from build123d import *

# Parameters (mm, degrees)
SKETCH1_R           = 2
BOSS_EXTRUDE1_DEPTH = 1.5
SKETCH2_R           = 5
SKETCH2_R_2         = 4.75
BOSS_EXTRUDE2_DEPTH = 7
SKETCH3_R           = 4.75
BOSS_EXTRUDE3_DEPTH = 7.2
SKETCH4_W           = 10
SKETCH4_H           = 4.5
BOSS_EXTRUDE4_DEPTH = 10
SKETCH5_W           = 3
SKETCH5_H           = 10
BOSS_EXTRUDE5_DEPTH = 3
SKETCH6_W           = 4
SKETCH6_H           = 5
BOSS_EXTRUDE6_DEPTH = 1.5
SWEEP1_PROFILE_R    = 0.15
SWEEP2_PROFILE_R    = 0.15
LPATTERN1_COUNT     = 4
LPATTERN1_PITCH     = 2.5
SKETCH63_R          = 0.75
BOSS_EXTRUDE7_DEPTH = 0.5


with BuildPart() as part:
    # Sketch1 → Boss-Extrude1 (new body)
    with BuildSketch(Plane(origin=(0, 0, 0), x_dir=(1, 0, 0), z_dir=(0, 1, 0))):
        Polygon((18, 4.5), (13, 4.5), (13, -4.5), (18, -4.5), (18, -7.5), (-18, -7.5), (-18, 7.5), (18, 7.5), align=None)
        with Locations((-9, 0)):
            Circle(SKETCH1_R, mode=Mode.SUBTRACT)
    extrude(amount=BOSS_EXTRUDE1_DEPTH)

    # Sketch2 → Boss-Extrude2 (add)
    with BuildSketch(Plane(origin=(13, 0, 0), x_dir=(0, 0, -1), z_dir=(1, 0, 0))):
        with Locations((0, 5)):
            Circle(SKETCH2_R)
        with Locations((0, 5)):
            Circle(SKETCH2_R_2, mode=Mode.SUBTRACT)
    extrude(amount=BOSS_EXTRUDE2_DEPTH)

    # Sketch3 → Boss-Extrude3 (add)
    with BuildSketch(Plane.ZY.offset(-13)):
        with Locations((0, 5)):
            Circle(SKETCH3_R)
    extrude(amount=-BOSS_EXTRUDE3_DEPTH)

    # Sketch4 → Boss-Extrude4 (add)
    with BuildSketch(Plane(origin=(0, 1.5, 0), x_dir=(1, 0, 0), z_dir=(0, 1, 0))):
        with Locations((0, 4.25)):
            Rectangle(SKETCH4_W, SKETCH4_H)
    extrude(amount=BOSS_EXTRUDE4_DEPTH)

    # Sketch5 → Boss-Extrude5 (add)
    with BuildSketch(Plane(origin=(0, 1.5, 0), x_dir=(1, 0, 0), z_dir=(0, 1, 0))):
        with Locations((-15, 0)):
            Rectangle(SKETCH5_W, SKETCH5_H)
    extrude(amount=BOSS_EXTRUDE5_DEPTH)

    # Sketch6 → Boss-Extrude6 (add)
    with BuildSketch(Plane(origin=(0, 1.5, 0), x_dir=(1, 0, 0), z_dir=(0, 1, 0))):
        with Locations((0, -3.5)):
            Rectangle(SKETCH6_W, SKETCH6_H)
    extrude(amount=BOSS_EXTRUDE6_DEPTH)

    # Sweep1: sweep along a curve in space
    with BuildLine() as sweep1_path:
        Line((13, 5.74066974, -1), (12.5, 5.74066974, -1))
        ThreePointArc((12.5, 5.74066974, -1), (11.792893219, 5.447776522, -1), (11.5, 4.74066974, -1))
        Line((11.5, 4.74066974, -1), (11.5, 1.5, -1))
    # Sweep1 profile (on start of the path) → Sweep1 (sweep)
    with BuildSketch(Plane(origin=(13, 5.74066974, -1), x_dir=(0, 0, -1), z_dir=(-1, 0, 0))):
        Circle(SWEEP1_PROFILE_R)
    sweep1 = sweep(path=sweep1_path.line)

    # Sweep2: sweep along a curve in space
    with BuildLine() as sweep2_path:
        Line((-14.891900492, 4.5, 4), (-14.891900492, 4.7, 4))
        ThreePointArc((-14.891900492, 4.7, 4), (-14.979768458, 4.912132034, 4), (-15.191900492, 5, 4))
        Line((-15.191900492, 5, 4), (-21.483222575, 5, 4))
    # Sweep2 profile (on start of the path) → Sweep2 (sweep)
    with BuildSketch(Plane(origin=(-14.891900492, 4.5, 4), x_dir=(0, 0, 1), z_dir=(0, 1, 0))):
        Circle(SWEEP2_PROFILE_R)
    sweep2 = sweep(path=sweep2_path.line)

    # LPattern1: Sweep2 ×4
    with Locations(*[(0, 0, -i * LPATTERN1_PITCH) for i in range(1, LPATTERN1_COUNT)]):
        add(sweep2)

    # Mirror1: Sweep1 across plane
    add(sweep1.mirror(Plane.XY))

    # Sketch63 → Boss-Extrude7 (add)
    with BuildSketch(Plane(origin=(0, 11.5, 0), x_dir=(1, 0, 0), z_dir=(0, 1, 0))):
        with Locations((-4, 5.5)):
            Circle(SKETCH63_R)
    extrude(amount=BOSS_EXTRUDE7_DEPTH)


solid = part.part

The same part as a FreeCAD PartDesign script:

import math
import FreeCAD as App
import Part
import Sketcher
from FreeCAD import Vector
Q = App.Units.Quantity

doc = App.newDocument("Part")
params = doc.addObject("Spreadsheet::Sheet", "Params")
for row, (alias, value) in enumerate([
    ("sketch1_diameter", "4 mm"),
    ("sketch1_width", "5 mm"),
    ("sketch1_width2", "36 mm"),
    ("sketch1_height", "3 mm"),
    ("sketch1_height2", "15 mm"),
    ("pad1_length", "1.5 mm"),
    ("sketch2_diameter", "10 mm"),
    ("sketch2_diameter2", "9.5 mm"),
    ("pad2_length", "7 mm"),
    ("sketch3_diameter", "9.5 mm"),
    ("pad3_length", "7.2 mm"),
    ("sketch4_width", "10 mm"),
    ("sketch4_height", "4.5 mm"),
    ("pad4_length", "10 mm"),
    ("sketch5_width", "3 mm"),
    ("sketch5_height", "10 mm"),
    ("pad5_length", "3 mm"),
    ("sketch6_width", "4 mm"),
    ("sketch6_height", "5 mm"),
    ("pad6_length", "1.5 mm"),
    ("sketch7_diameter", "0.3 mm"),
    ("sketch8_radius", "1 mm"),
    ("sketch8_width", "0.5 mm"),
    ("sketch9_diameter", "0.3 mm"),
    ("sketch10_radius", "0.3 mm"),
    ("sketch10_height", "0.2 mm"),
    ("linearpattern_pitch", "2.5 mm"),
    ("sketch11_diameter", "1.5 mm"),
    ("pad7_length", "0.5 mm"),
], start=1):
    params.set(f"A{row}", alias)
    params.set(f"B{row}", "=" + value)
    params.setAlias(f"B{row}", alias)

body = doc.addObject("PartDesign::Body", "Body")

sketch1 = body.newObject("Sketcher::SketchObject", "Sketch")
sketch1.AttachmentSupport = (doc.getObject("XZ_Plane"), [""])
sketch1.MapMode = "FlatFace"
sketch1.addGeometry(Part.LineSegment(Vector(13, -4.5, 0), Vector(18, -4.5, 0)), False)
sketch1.addGeometry(Part.LineSegment(Vector(18, -4.5, 0), Vector(18, -7.5, 0)), False)
sketch1.addGeometry(Part.LineSegment(Vector(18, -7.5, 0), Vector(-18, -7.5, 0)), False)
sketch1.addGeometry(Part.LineSegment(Vector(-18, -7.5, 0), Vector(-18, 7.5, 0)), False)
sketch1.addGeometry(Part.LineSegment(Vector(-18, 7.5, 0), Vector(18, 7.5, 0)), False)
sketch1.addGeometry(Part.LineSegment(Vector(18, 7.5, 0), Vector(18, 4.5, 0)), False)
sketch1.addGeometry(Part.LineSegment(Vector(18, 4.5, 0), Vector(13, 4.5, 0)), False)
sketch1.addGeometry(Part.LineSegment(Vector(13, 4.5, 0), Vector(13, -4.5, 0)), False)
sketch1.addGeometry(Part.Circle(Vector(-9, 0, 0), Vector(0, 0, 1), 2), False)
sketch1.addConstraint(Sketcher.Constraint("Coincident", 0, 2, 1, 1))
sketch1.addConstraint(Sketcher.Constraint("Coincident", 1, 2, 2, 1))
sketch1.addConstraint(Sketcher.Constraint("Coincident", 2, 2, 3, 1))
sketch1.addConstraint(Sketcher.Constraint("Coincident", 3, 2, 4, 1))
sketch1.addConstraint(Sketcher.Constraint("Coincident", 4, 2, 5, 1))
sketch1.addConstraint(Sketcher.Constraint("Coincident", 5, 2, 6, 1))
sketch1.addConstraint(Sketcher.Constraint("Coincident", 6, 2, 7, 1))
sketch1.addConstraint(Sketcher.Constraint("Coincident", 7, 2, 0, 1))
sketch1.addConstraint(Sketcher.Constraint("Horizontal", 0))
sketch1.addConstraint(Sketcher.Constraint("Vertical", 1))
sketch1.addConstraint(Sketcher.Constraint("Horizontal", 2))
sketch1.addConstraint(Sketcher.Constraint("Vertical", 3))
sketch1.addConstraint(Sketcher.Constraint("Horizontal", 4))
sketch1.addConstraint(Sketcher.Constraint("Vertical", 5))
sketch1.addConstraint(Sketcher.Constraint("Horizontal", 6))
sketch1.addConstraint(Sketcher.Constraint("Vertical", 7))
sketch1.addConstraint(Sketcher.Constraint("Symmetric", 1, 2, 3, 2, -1, 1))
sketch1.addConstraint(Sketcher.Constraint("Symmetric", 0, 2, 5, 2, -1))
sketch1.addConstraint(Sketcher.Constraint("PointOnObject", 8, 3, -1))
sketch1.addConstraint(Sketcher.Constraint("Diameter", 8, Q("4 mm")))
sketch1.addConstraint(Sketcher.Constraint("DistanceX", 0, 1, 0, 2, Q("5 mm")))
sketch1.addConstraint(Sketcher.Constraint("DistanceX", 2, 2, 2, 1, Q("36 mm")))
sketch1.addConstraint(Sketcher.Constraint("DistanceY", 1, 2, 1, 1, Q("3 mm")))
sketch1.addConstraint(Sketcher.Constraint("DistanceY", 3, 1, 3, 2, Q("15 mm")))
sketch1.addConstraint(Sketcher.Constraint("DistanceX", 8, 3, -1, 1, Q("9 mm")))
sketch1.setExpression("Constraints[19]", "Params.sketch1_diameter")
sketch1.setExpression("Constraints[20]", "Params.sketch1_width")
sketch1.setExpression("Constraints[21]", "Params.sketch1_width2")
sketch1.setExpression("Constraints[22]", "Params.sketch1_height")
sketch1.setExpression("Constraints[23]", "Params.sketch1_height2")
pad1 = body.newObject("PartDesign::Pad", "Pad")
pad1.Profile = sketch1
pad1.setExpression("Length", "Params.pad1_length")
pad1.Reversed = True

sketch2 = body.newObject("Sketcher::SketchObject", "Sketch001")
sketch2.AttachmentSupport = (doc.getObject("YZ_Plane"), [""])
sketch2.MapMode = "FlatFace"
sketch2.AttachmentOffset = App.Placement(Vector(0, 0, 13), App.Rotation())
sketch2.addGeometry(Part.Circle(Vector(5, 0, 0), Vector(0, 0, 1), 5), False)
sketch2.addGeometry(Part.Circle(Vector(5, 0, 0), Vector(0, 0, 1), 4.8), False)
sketch2.addConstraint(Sketcher.Constraint("Coincident", 1, 3, 0, 3))
sketch2.addConstraint(Sketcher.Constraint("PointOnObject", 0, 3, -1))
sketch2.addConstraint(Sketcher.Constraint("Diameter", 0, Q("10 mm")))
sketch2.addConstraint(Sketcher.Constraint("Diameter", 1, Q("9.5 mm")))
sketch2.addConstraint(Sketcher.Constraint("DistanceX", -1, 1, 0, 3, Q("5 mm")))
sketch2.setExpression("Constraints[2]", "Params.sketch2_diameter")
sketch2.setExpression("Constraints[3]", "Params.sketch2_diameter2")
pad2 = body.newObject("PartDesign::Pad", "Pad001")
pad2.Profile = sketch2
pad2.setExpression("Length", "Params.pad2_length")

sketch3 = body.newObject("Sketcher::SketchObject", "Sketch002")
sketch3.AttachmentSupport = (doc.getObject("YZ_Plane"), [""])
sketch3.MapMode = "FlatFace"
sketch3.AttachmentOffset = App.Placement(Vector(0, 0, 13), App.Rotation())
sketch3.addGeometry(Part.Circle(Vector(5, 0, 0), Vector(0, 0, 1), 4.8), False)
sketch3.addConstraint(Sketcher.Constraint("PointOnObject", 0, 3, -1))
sketch3.addConstraint(Sketcher.Constraint("Diameter", 0, Q("9.5 mm")))
sketch3.addConstraint(Sketcher.Constraint("DistanceX", -1, 1, 0, 3, Q("5 mm")))
sketch3.setExpression("Constraints[1]", "Params.sketch3_diameter")
pad3 = body.newObject("PartDesign::Pad", "Pad002")
pad3.Profile = sketch3
pad3.setExpression("Length", "Params.pad3_length")

sketch4 = body.newObject("Sketcher::SketchObject", "Sketch003")
sketch4.AttachmentSupport = (doc.getObject("XZ_Plane"), [""])
sketch4.MapMode = "FlatFace"
sketch4.AttachmentOffset = App.Placement(Vector(0, 0, -1.5), App.Rotation())
sketch4.addGeometry(Part.LineSegment(Vector(-5, -6.5, 0), Vector(-5, -2, 0)), False)
sketch4.addGeometry(Part.LineSegment(Vector(-5, -2, 0), Vector(5, -2, 0)), False)
sketch4.addGeometry(Part.LineSegment(Vector(5, -2, 0), Vector(5, -6.5, 0)), False)
sketch4.addGeometry(Part.LineSegment(Vector(5, -6.5, 0), Vector(-5, -6.5, 0)), False)
sketch4.addConstraint(Sketcher.Constraint("Coincident", 0, 2, 1, 1))
sketch4.addConstraint(Sketcher.Constraint("Coincident", 1, 2, 2, 1))
sketch4.addConstraint(Sketcher.Constraint("Coincident", 2, 2, 3, 1))
sketch4.addConstraint(Sketcher.Constraint("Coincident", 3, 2, 0, 1))
sketch4.addConstraint(Sketcher.Constraint("Vertical", 0))
sketch4.addConstraint(Sketcher.Constraint("Horizontal", 1))
sketch4.addConstraint(Sketcher.Constraint("Vertical", 2))
sketch4.addConstraint(Sketcher.Constraint("Horizontal", 3))
sketch4.addConstraint(Sketcher.Constraint("DistanceX", 1, 1, 1, 2, Q("10 mm")))
sketch4.addConstraint(Sketcher.Constraint("DistanceY", 0, 1, 0, 2, Q("4.5 mm")))
sketch4.addConstraint(Sketcher.Constraint("DistanceX", 0, 2, -1, 1, Q("5 mm")))
sketch4.addConstraint(Sketcher.Constraint("DistanceY", 0, 2, -1, 1, Q("2 mm")))
sketch4.setExpression("Constraints[8]", "Params.sketch4_width")
sketch4.setExpression("Constraints[9]", "Params.sketch4_height")
pad4 = body.newObject("PartDesign::Pad", "Pad003")
pad4.Profile = sketch4
pad4.setExpression("Length", "Params.pad4_length")
pad4.Reversed = True

sketch5 = body.newObject("Sketcher::SketchObject", "Sketch004")
sketch5.AttachmentSupport = (doc.getObject("XZ_Plane"), [""])
sketch5.MapMode = "FlatFace"
sketch5.AttachmentOffset = App.Placement(Vector(0, 0, -1.5), App.Rotation())
sketch5.addGeometry(Part.LineSegment(Vector(-16.5, -5, 0), Vector(-16.5, 5, 0)), False)
sketch5.addGeometry(Part.LineSegment(Vector(-16.5, 5, 0), Vector(-13.5, 5, 0)), False)
sketch5.addGeometry(Part.LineSegment(Vector(-13.5, 5, 0), Vector(-13.5, -5, 0)), False)
sketch5.addGeometry(Part.LineSegment(Vector(-13.5, -5, 0), Vector(-16.5, -5, 0)), False)
sketch5.addConstraint(Sketcher.Constraint("Coincident", 0, 2, 1, 1))
sketch5.addConstraint(Sketcher.Constraint("Coincident", 1, 2, 2, 1))
sketch5.addConstraint(Sketcher.Constraint("Coincident", 2, 2, 3, 1))
sketch5.addConstraint(Sketcher.Constraint("Coincident", 3, 2, 0, 1))
sketch5.addConstraint(Sketcher.Constraint("Vertical", 0))
sketch5.addConstraint(Sketcher.Constraint("Horizontal", 1))
sketch5.addConstraint(Sketcher.Constraint("Vertical", 2))
sketch5.addConstraint(Sketcher.Constraint("Horizontal", 3))
sketch5.addConstraint(Sketcher.Constraint("DistanceX", 1, 1, 1, 2, Q("3 mm")))
sketch5.addConstraint(Sketcher.Constraint("DistanceY", 0, 1, 0, 2, Q("10 mm")))
sketch5.addConstraint(Sketcher.Constraint("DistanceY", -1, 1, 0, 2, Q("5 mm")))
sketch5.addConstraint(Sketcher.Constraint("DistanceX", 0, 2, -1, 1, Q("16.5 mm")))
sketch5.setExpression("Constraints[8]", "Params.sketch5_width")
sketch5.setExpression("Constraints[9]", "Params.sketch5_height")
pad5 = body.newObject("PartDesign::Pad", "Pad004")
pad5.Profile = sketch5
pad5.setExpression("Length", "Params.pad5_length")
pad5.Reversed = True

sketch6 = body.newObject("Sketcher::SketchObject", "Sketch005")
sketch6.AttachmentSupport = (doc.getObject("XZ_Plane"), [""])
sketch6.MapMode = "FlatFace"
sketch6.AttachmentOffset = App.Placement(Vector(0, 0, -1.5), App.Rotation())
sketch6.addGeometry(Part.LineSegment(Vector(-2, 1, 0), Vector(-2, 6, 0)), False)
sketch6.addGeometry(Part.LineSegment(Vector(-2, 6, 0), Vector(2, 6, 0)), False)
sketch6.addGeometry(Part.LineSegment(Vector(2, 6, 0), Vector(2, 1, 0)), False)
sketch6.addGeometry(Part.LineSegment(Vector(2, 1, 0), Vector(-2, 1, 0)), False)
sketch6.addConstraint(Sketcher.Constraint("Coincident", 0, 2, 1, 1))
sketch6.addConstraint(Sketcher.Constraint("Coincident", 1, 2, 2, 1))
sketch6.addConstraint(Sketcher.Constraint("Coincident", 2, 2, 3, 1))
sketch6.addConstraint(Sketcher.Constraint("Coincident", 3, 2, 0, 1))
sketch6.addConstraint(Sketcher.Constraint("Vertical", 0))
sketch6.addConstraint(Sketcher.Constraint("Horizontal", 1))
sketch6.addConstraint(Sketcher.Constraint("Vertical", 2))
sketch6.addConstraint(Sketcher.Constraint("Horizontal", 3))
sketch6.addConstraint(Sketcher.Constraint("DistanceX", 1, 1, 1, 2, Q("4 mm")))
sketch6.addConstraint(Sketcher.Constraint("DistanceY", 0, 1, 0, 2, Q("5 mm")))
sketch6.addConstraint(Sketcher.Constraint("DistanceX", 0, 2, -1, 1, Q("2 mm")))
sketch6.addConstraint(Sketcher.Constraint("DistanceY", -1, 1, 0, 2, Q("6 mm")))
sketch6.setExpression("Constraints[8]", "Params.sketch6_width")
sketch6.setExpression("Constraints[9]", "Params.sketch6_height")
pad6 = body.newObject("PartDesign::Pad", "Pad005")
pad6.Profile = sketch6
pad6.setExpression("Length", "Params.pad6_length")
pad6.Reversed = True

sketch7 = body.newObject("Sketcher::SketchObject", "Sketch006")
sketch7.AttachmentSupport = (doc.getObject("YZ_Plane"), [""])
sketch7.MapMode = "FlatFace"
sketch7.AttachmentOffset = App.Placement(Vector(0, 0, 13), App.Rotation())
sketch7.addGeometry(Part.Circle(Vector(5.74, -1, 0), Vector(0, 0, 1), 0.15), False)
sketch7.addConstraint(Sketcher.Constraint("Diameter", 0, Q("0.3 mm")))
sketch7.addConstraint(Sketcher.Constraint("DistanceY", 0, 3, -1, 1, Q("1 mm")))
sketch7.addConstraint(Sketcher.Constraint("DistanceX", -1, 1, 0, 3, Q("5.74067 mm")))
sketch7.setExpression("Constraints[0]", "Params.sketch7_diameter")

sketch8 = body.newObject("Sketcher::SketchObject", "Sketch007")
sketch8.AttachmentSupport = (doc.getObject("XY_Plane"), [""])
sketch8.MapMode = "FlatFace"
sketch8.AttachmentOffset = App.Placement(Vector(0, 0, -1), App.Rotation())
sketch8.addGeometry(Part.LineSegment(Vector(13, 5.7, 0), Vector(12.5, 5.7, 0)), False)
sketch8.addGeometry(Part.ArcOfCircle(Part.Circle(Vector(12.5, 4.7, 0), Vector(0, 0, 1), 1), math.radians(90), math.radians(180)), False)
sketch8.addGeometry(Part.LineSegment(Vector(11.5, 4.7, 0), Vector(11.5, 1.5, 0)), False)
sketch8.addConstraint(Sketcher.Constraint("Tangent", 0, 2, 1, 1))
sketch8.addConstraint(Sketcher.Constraint("Tangent", 1, 2, 2, 1))
sketch8.addConstraint(Sketcher.Constraint("Horizontal", 0))
sketch8.addConstraint(Sketcher.Constraint("Vertical", 2))
sketch8.addConstraint(Sketcher.Constraint("Radius", 1, Q("1 mm")))
sketch8.addConstraint(Sketcher.Constraint("DistanceX", 0, 2, 0, 1, Q("0.5 mm")))
sketch8.addConstraint(Sketcher.Constraint("DistanceX", -1, 1, 0, 1, Q("13 mm")))
sketch8.addConstraint(Sketcher.Constraint("DistanceY", -1, 1, 2, 2, Q("1.5 mm")))
sketch8.addConstraint(Sketcher.Constraint("DistanceY", 2, 2, 2, 1, Q("3.24067 mm")))
sketch8.setExpression("Constraints[4]", "Params.sketch8_radius")
sketch8.setExpression("Constraints[5]", "Params.sketch8_width")
doc.recompute()

additivepipe = body.newObject("PartDesign::AdditivePipe", "AdditivePipe")
additivepipe.Profile = sketch7
additivepipe.Spine = (sketch8, ["Edge1", "Edge2", "Edge3"])

sketch9 = body.newObject("Sketcher::SketchObject", "Sketch008")
sketch9.AttachmentSupport = (doc.getObject("XZ_Plane"), [""])
sketch9.MapMode = "FlatFace"
sketch9.AttachmentOffset = App.Placement(Vector(0, 0, -4.5), App.Rotation())
sketch9.addGeometry(Part.Circle(Vector(-14.89, 4, 0), Vector(0, 0, 1), 0.15), False)
sketch9.addConstraint(Sketcher.Constraint("Diameter", 0, Q("0.3 mm")))
sketch9.addConstraint(Sketcher.Constraint("DistanceY", -1, 1, 0, 3, Q("4 mm")))
sketch9.addConstraint(Sketcher.Constraint("DistanceX", 0, 3, -1, 1, Q("14.8919 mm")))
sketch9.setExpression("Constraints[0]", "Params.sketch9_diameter")

sketch10 = body.newObject("Sketcher::SketchObject", "Sketch009")
sketch10.AttachmentSupport = (doc.getObject("XY_Plane"), [""])
sketch10.MapMode = "FlatFace"
sketch10.AttachmentOffset = App.Placement(Vector(0, 0, 4), App.Rotation())
sketch10.addGeometry(Part.LineSegment(Vector(-14.89, 4.5, 0), Vector(-14.89, 4.7, 0)), False)
sketch10.addGeometry(Part.ArcOfCircle(Part.Circle(Vector(-15.19, 4.7, 0), Vector(0, 0, 1), 0.3), math.radians(0), math.radians(90)), False)
sketch10.addGeometry(Part.LineSegment(Vector(-15.19, 5, 0), Vector(-21.48, 5, 0)), False)
sketch10.addConstraint(Sketcher.Constraint("Tangent", 0, 2, 1, 1))
sketch10.addConstraint(Sketcher.Constraint("Tangent", 1, 2, 2, 1))
sketch10.addConstraint(Sketcher.Constraint("Vertical", 0))
sketch10.addConstraint(Sketcher.Constraint("Horizontal", 2))
sketch10.addConstraint(Sketcher.Constraint("Radius", 1, Q("0.3 mm")))
sketch10.addConstraint(Sketcher.Constraint("DistanceY", 0, 1, 0, 2, Q("0.2 mm")))
sketch10.addConstraint(Sketcher.Constraint("DistanceY", -1, 1, 1, 2, Q("5 mm")))
sketch10.addConstraint(Sketcher.Constraint("DistanceX", 1, 3, -1, 1, Q("15.1919 mm")))
sketch10.addConstraint(Sketcher.Constraint("DistanceX", 2, 2, 2, 1, Q("6.291322 mm")))
sketch10.setExpression("Constraints[4]", "Params.sketch10_radius")
sketch10.setExpression("Constraints[5]", "Params.sketch10_height")
doc.recompute()

additivepipe2 = body.newObject("PartDesign::AdditivePipe", "AdditivePipe001")
additivepipe2.Profile = sketch9
additivepipe2.Spine = (sketch10, ["Edge1", "Edge2", "Edge3"])
doc.recompute()

linearpattern = body.newObject("PartDesign::LinearPattern", "LinearPattern")
linearpattern.Originals = [additivepipe2]
linearpattern.Direction = (doc.getObject("Z_Axis"), [""])
linearpattern.Mode = "offset"
linearpattern.setExpression("Offset", "Params.linearpattern_pitch")
linearpattern.Occurrences = 4
linearpattern.Reversed = True
body.Tip = linearpattern
doc.recompute()

mirrored = body.newObject("PartDesign::Mirrored", "Mirrored")
mirrored.Originals = [additivepipe]
mirrored.MirrorPlane = (doc.getObject("XY_Plane"), [""])
body.Tip = mirrored

sketch11 = body.newObject("Sketcher::SketchObject", "Sketch010")
sketch11.AttachmentSupport = (doc.getObject("XZ_Plane"), [""])
sketch11.MapMode = "FlatFace"
sketch11.AttachmentOffset = App.Placement(Vector(0, 0, -11.5), App.Rotation())
sketch11.addGeometry(Part.Circle(Vector(-4, -5.5, 0), Vector(0, 0, 1), 0.8), False)
sketch11.addConstraint(Sketcher.Constraint("Diameter", 0, Q("1.5 mm")))
sketch11.addConstraint(Sketcher.Constraint("DistanceX", 0, 3, -1, 1, Q("4 mm")))
sketch11.addConstraint(Sketcher.Constraint("DistanceY", 0, 3, -1, 1, Q("5.5 mm")))
sketch11.setExpression("Constraints[0]", "Params.sketch11_diameter")
pad7 = body.newObject("PartDesign::Pad", "Pad006")
pad7.Profile = sketch11
pad7.setExpression("Length", "Params.pad7_length")
pad7.Reversed = True

doc.recompute()
